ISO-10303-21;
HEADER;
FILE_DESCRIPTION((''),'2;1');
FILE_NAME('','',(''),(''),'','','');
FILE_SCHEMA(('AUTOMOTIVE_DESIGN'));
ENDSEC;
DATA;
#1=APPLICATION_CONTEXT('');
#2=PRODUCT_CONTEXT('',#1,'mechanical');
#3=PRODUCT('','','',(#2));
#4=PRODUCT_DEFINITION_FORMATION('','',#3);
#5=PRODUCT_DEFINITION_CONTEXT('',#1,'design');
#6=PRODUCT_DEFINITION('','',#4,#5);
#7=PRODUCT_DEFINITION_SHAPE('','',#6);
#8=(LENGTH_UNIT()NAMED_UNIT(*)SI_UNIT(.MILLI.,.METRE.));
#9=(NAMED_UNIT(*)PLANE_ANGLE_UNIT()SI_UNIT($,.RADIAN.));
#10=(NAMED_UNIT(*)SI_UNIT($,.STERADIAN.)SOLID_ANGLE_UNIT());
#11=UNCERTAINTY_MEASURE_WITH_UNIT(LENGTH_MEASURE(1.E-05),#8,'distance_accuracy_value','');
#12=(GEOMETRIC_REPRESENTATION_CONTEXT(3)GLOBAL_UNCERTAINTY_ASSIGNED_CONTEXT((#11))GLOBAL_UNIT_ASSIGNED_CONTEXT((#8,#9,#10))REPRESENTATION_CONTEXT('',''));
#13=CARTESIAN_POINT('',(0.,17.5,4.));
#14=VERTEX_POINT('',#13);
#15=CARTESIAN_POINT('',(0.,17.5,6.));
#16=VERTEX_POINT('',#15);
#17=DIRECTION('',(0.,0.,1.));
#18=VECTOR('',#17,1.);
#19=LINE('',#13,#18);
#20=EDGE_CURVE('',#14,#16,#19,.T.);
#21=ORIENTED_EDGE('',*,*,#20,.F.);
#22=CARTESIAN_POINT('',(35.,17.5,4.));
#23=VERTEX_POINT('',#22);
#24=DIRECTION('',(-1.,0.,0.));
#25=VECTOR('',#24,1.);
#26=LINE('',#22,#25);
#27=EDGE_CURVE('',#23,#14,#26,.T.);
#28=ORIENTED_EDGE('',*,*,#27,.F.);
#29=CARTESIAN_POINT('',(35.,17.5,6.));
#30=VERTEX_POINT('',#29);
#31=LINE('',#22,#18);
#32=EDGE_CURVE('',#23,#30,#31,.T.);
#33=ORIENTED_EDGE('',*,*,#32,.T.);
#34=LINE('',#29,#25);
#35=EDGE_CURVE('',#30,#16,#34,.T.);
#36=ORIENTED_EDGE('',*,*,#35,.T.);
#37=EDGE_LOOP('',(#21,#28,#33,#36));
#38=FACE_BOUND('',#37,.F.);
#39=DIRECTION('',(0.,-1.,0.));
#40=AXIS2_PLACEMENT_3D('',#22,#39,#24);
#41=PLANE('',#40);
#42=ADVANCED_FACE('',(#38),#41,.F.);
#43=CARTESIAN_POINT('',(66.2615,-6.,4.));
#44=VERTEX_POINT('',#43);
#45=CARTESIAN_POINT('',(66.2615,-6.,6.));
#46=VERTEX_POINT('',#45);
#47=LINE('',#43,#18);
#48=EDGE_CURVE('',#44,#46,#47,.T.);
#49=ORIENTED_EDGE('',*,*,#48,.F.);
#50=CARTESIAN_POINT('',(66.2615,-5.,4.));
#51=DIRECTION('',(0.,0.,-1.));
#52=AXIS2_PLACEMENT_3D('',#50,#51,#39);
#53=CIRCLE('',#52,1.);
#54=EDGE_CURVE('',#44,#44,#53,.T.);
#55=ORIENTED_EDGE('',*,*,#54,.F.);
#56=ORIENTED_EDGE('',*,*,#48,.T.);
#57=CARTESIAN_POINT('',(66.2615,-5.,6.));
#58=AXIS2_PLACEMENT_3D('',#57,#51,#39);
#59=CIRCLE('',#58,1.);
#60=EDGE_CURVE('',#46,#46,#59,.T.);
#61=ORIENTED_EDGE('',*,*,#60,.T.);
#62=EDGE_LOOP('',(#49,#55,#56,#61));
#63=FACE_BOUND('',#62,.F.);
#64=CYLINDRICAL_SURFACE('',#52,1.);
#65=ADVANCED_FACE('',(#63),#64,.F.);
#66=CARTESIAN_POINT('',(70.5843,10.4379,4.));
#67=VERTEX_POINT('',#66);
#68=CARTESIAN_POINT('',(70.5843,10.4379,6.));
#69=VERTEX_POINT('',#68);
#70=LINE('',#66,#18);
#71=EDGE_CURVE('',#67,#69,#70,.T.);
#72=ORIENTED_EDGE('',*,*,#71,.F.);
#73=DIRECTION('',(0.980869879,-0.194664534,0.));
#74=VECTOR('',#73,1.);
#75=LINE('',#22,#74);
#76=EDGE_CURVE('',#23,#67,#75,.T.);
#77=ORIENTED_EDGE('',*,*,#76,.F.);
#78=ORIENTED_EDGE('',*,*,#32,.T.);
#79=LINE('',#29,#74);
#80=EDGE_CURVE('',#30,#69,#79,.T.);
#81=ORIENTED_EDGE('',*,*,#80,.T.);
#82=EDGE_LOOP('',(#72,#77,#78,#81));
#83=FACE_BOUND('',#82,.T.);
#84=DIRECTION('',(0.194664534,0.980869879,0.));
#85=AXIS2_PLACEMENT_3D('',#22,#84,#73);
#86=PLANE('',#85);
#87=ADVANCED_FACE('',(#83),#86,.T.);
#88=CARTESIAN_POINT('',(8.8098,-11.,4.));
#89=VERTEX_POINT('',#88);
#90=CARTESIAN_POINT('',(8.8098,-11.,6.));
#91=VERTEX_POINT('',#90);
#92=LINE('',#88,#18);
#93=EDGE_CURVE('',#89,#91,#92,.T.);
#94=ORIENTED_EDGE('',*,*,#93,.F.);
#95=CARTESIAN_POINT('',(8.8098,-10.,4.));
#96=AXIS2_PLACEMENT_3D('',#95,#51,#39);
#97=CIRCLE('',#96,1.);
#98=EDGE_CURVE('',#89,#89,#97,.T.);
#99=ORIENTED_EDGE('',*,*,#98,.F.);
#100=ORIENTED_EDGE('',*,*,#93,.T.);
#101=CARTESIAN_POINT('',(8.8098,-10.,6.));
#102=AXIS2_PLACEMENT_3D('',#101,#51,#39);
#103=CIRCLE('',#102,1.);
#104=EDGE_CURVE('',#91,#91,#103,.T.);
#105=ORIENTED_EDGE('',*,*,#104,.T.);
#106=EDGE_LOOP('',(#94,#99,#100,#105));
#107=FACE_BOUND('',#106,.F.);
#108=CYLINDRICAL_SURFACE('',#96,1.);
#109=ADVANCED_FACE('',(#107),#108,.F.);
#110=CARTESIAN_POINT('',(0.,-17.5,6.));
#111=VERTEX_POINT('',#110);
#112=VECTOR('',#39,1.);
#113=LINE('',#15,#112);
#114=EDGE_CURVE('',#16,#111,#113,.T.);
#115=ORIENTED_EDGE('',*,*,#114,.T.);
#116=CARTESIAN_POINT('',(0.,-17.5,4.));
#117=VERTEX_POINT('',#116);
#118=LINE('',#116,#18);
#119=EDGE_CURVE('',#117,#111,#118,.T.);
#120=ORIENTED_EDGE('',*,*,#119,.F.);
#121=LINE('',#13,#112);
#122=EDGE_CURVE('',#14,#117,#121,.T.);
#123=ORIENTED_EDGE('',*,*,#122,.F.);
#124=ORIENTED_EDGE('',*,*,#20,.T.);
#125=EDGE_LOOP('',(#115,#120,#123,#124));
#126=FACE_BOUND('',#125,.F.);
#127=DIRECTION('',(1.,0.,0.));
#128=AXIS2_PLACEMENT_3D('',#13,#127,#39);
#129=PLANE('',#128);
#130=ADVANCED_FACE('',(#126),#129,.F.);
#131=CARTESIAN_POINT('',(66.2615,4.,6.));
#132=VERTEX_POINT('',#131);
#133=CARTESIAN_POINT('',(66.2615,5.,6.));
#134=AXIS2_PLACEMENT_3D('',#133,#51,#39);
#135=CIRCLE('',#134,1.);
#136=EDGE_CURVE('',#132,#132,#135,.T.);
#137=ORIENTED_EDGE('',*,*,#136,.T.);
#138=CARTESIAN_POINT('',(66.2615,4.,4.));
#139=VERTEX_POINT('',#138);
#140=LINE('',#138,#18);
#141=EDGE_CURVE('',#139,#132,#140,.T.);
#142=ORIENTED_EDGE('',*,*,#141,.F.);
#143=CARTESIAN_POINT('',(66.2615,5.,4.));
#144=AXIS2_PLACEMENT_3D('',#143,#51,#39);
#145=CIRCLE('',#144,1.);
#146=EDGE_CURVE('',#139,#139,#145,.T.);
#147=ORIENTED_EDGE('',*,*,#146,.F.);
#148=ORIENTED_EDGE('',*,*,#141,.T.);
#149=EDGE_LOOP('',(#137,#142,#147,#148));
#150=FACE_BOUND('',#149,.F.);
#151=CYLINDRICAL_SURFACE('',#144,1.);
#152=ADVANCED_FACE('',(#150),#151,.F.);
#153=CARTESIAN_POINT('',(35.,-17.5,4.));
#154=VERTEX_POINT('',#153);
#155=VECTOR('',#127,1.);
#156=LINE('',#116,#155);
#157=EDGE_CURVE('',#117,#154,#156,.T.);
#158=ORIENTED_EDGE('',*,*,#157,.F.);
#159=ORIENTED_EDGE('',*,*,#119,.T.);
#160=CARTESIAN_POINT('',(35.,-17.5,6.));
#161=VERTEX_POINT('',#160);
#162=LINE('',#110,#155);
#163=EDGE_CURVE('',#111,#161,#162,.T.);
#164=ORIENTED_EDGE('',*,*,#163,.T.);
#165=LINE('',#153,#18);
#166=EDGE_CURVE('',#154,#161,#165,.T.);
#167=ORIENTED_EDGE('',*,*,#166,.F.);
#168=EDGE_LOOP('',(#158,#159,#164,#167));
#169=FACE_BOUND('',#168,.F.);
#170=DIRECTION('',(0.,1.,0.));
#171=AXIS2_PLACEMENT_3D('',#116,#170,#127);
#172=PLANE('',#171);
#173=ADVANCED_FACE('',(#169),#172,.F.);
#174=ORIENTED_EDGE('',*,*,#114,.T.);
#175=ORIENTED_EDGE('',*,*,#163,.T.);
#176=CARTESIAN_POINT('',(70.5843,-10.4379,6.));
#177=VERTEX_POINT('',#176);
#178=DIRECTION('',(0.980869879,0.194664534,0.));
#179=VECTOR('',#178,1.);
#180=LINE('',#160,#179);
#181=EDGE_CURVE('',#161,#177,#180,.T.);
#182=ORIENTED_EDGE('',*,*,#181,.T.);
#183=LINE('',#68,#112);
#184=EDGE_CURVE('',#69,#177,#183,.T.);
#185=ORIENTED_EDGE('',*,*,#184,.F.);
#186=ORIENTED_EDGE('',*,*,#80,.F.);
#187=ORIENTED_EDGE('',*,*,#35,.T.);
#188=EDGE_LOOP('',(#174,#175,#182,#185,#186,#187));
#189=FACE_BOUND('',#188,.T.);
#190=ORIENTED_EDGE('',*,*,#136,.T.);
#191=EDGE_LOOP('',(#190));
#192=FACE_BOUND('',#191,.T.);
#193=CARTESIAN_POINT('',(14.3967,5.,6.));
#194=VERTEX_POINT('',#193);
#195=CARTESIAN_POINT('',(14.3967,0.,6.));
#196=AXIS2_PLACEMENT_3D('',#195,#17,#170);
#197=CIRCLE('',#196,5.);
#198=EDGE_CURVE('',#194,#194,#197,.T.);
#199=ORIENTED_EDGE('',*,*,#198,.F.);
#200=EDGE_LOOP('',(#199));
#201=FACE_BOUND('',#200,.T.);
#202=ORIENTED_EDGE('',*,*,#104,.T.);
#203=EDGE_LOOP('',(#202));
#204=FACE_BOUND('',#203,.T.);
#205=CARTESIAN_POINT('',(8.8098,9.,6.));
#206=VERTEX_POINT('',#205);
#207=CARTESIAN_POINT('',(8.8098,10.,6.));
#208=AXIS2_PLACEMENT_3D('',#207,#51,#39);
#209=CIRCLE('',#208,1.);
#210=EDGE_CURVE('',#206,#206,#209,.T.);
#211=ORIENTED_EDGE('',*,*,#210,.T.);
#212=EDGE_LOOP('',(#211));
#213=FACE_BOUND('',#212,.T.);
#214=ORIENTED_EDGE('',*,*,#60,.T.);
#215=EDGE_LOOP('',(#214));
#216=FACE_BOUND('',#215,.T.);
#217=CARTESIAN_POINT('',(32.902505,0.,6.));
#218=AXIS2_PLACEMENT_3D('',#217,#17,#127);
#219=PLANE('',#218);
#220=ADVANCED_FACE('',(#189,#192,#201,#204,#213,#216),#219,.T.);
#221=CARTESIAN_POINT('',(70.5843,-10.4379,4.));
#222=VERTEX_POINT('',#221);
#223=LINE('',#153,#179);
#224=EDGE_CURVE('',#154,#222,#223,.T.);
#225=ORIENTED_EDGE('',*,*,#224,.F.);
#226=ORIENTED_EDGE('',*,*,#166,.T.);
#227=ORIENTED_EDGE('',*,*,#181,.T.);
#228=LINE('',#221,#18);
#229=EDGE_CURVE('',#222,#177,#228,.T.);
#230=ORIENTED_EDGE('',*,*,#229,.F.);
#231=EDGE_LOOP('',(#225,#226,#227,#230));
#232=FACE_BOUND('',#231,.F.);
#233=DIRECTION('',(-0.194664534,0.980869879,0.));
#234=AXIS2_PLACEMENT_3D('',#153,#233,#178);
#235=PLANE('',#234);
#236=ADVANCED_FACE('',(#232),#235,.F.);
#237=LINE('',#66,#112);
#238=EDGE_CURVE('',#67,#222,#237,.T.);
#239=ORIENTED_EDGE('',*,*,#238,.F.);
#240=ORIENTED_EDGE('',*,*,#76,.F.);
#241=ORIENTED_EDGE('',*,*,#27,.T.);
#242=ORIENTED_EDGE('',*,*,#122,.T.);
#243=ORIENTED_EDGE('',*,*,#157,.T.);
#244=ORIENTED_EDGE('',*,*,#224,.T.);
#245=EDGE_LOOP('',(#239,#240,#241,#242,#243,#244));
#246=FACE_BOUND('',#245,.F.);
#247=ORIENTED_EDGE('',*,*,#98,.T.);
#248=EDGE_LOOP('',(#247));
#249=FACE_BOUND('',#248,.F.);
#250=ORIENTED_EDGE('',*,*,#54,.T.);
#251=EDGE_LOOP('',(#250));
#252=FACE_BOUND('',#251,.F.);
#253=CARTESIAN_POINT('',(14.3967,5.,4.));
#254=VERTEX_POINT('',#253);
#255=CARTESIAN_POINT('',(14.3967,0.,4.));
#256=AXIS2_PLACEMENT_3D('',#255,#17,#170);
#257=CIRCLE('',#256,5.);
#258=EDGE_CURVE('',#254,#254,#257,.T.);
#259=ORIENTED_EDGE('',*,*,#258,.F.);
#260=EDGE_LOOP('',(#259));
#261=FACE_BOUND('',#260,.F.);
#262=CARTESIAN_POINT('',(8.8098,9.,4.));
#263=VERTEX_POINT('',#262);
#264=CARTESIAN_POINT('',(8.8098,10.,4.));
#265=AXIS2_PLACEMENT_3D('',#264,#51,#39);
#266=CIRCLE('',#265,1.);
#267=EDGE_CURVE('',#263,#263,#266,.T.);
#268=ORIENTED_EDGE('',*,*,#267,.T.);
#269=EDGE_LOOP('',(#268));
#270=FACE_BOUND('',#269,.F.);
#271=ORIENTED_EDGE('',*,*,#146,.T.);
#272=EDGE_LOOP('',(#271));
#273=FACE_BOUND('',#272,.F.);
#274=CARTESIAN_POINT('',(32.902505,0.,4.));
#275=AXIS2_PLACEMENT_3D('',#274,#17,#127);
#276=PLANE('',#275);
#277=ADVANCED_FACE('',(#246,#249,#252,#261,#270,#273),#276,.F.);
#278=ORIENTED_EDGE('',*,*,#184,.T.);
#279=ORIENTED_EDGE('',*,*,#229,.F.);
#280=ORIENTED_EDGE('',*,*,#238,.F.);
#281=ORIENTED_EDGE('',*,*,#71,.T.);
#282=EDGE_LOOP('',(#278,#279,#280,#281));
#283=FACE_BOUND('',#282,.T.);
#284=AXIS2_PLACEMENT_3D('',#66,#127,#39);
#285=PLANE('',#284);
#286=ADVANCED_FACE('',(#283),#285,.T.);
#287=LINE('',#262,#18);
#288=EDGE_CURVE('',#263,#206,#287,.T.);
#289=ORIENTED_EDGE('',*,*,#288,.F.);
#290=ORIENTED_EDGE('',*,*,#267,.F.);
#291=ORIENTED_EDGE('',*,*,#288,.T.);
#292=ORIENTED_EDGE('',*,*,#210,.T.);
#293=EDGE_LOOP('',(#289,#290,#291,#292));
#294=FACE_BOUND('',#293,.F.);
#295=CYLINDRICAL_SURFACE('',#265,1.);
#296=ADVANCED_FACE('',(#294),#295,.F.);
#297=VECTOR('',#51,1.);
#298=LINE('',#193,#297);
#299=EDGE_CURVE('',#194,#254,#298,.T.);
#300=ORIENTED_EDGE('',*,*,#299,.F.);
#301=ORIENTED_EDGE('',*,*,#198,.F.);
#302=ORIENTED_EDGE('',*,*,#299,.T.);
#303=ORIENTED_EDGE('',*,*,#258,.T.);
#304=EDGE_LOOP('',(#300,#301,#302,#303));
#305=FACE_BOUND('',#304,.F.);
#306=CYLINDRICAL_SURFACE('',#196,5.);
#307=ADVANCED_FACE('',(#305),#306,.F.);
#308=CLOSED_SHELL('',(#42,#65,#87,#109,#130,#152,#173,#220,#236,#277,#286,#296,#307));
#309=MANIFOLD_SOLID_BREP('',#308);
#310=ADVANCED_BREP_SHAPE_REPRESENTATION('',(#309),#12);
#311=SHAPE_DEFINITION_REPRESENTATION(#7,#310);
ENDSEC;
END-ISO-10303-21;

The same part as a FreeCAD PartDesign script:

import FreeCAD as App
import Part
import Sketcher
from FreeCAD import Vector
Q = App.Units.Quantity


def add_polygon(sketch, points):
    """Adds a closed chain of lines whose ends are joined by coincident constraints."""
    first, n = sketch.GeometryCount, len(points)
    for a, b in zip(points, points[1:] + points[:1]):
        sketch.addGeometry(Part.LineSegment(App.Vector(*a, 0), App.Vector(*b, 0)), False)
    for i in range(n):
        sketch.addConstraint(Sketcher.Constraint("Coincident", first + i, 2, first + (i + 1) % n, 1))

doc = App.newDocument("Part")
params = doc.addObject("Spreadsheet::Sheet", "Params")
for row, (alias, value) in enumerate([
    ("sketch1_width", "35 mm"),
    ("pad1_length", "2 mm"),
    ("sketch2_diameter", "10 mm"),
    ("sketch3_diameter", "2 mm"),
], start=1):
    params.set(f"A{row}", alias)
    params.set(f"B{row}", "=" + value)
    params.setAlias(f"B{row}", alias)

body = doc.addObject("PartDesign::Body", "Body")

sketch1 = body.newObject("Sketcher::SketchObject", "Sketch")
sketch1.AttachmentSupport = (doc.getObject("XY_Plane"), [""])
sketch1.MapMode = "FlatFace"
sketch1.AttachmentOffset = App.Placement(Vector(0, 0, 4), App.Rotation())
add_polygon(sketch1, [(35, 18), (0, 18), (0, -18), (35, -18), (71, -10), (71, 10)])
sketch1.addConstraint(Sketcher.Constraint("Horizontal", 0))
sketch1.addConstraint(Sketcher.Constraint("Vertical", 1))
sketch1.addConstraint(Sketcher.Constraint("Horizontal", 2))
sketch1.addConstraint(Sketcher.Constraint("Vertical", 4))
sketch1.addConstraint(Sketcher.Constraint("Symmetric", 0, 2, 1, 2, -1, 1))
sketch1.addConstraint(Sketcher.Constraint("Vertical", 2, 2, 5, 2))
sketch1.addConstraint(Sketcher.Constraint("Equal", 2, 1))
sketch1.addConstraint(Sketcher.Constraint("Equal", 3, 5))
sketch1.addConstraint(Sketcher.Constraint("DistanceX", 0, 2, 0, 1, Q("35 mm")))
sketch1.addConstraint(Sketcher.Constraint("DistanceY", 4, 1, 4, 2, Q("20.8758 mm")))
sketch1.addConstraint(Sketcher.Constraint("Distance", 3, Q("36.2783 mm")))
sketch1.setExpression("Constraints[14]", "Params.sketch1_width")
pad1 = body.newObject("PartDesign::Pad", "Pad")
pad1.Profile = sketch1
pad1.setExpression("Length", "Params.pad1_length")

sketch2 = body.newObject("Sketcher::SketchObject", "Sketch001")
sketch2.AttachmentSupport = (doc.getObject("XY_Plane"), [""])
sketch2.MapMode = "FlatFace"
sketch2.AttachmentOffset = App.Placement(Vector(0, 0, 6), App.Rotation())
sketch2.addGeometry(Part.Circle(Vector(14, 0, 0), Vector(0, 0, 1), 5), False)
sketch2.addConstraint(Sketcher.Constraint("PointOnObject", 0, 3, -1))
sketch2.addConstraint(Sketcher.Constraint("Diameter", 0, Q("10 mm")))
sketch2.addConstraint(Sketcher.Constraint("DistanceX", -1, 1, 0, 3, Q("14.3967 mm")))
sketch2.setExpression("Constraints[1]", "Params.sketch2_diameter")
pocket1 = body.newObject("PartDesign::Pocket", "Pocket")
pocket1.Profile = sketch2
pocket1.Type = "ThroughAll"

sketch3 = body.newObject("Sketcher::SketchObject", "Sketch002")
sketch3.AttachmentSupport = (doc.getObject("XY_Plane"), [""])
sketch3.MapMode = "FlatFace"
sketch3.AttachmentOffset = App.Placement(Vector(0, 0, 4), App.Rotation())
sketch3.addGeometry(Part.Circle(Vector(8.8, -10, 0), Vector(0, 0, 1), 1), False)
sketch3.addGeometry(Part.Circle(Vector(66.3, 5, 0), Vector(0, 0, 1), 1), False)
sketch3.addGeometry(Part.Circle(Vector(66.3, -5, 0), Vector(0, 0, 1), 1), False)
sketch3.addGeometry(Part.Circle(Vector(8.8, 10, 0), Vector(0, 0, 1), 1), False)
sketch3.addConstraint(Sketcher.Constraint("Equal", 0, 1))
sketch3.addConstraint(Sketcher.Constraint("Equal", 1, 2))
sketch3.addConstraint(Sketcher.Constraint("Equal", 2, 3))
sketch3.addConstraint(Sketcher.Constraint("Symmetric", 1, 3, 2, 3, -1))
sketch3.addConstraint(Sketcher.Constraint("Symmetric", 0, 3, 3, 3, -1))
sketch3.addConstraint(Sketcher.Constraint("Diameter", 0, Q("2 mm")))
sketch3.addConstraint(Sketcher.Constraint("DistanceY", -1, 1, 1, 3, Q("5 mm")))
sketch3.addConstraint(Sketcher.Constraint("DistanceY", 0, 3, 2, 3, Q("5 mm")))
sketch3.addConstraint(Sketcher.Constraint("DistanceX", -1, 1, 0, 3, Q("8.8098 mm")))
sketch3.addConstraint(Sketcher.Constraint("DistanceX", -1, 1, 1, 3, Q("66.2615 mm")))
sketch3.setExpression("Constraints[5]", "Params.sketch3_diameter")
pocket2 = body.newObject("PartDesign::Pocket", "Pocket001")
pocket2.Profile = sketch3
pocket2.Type = "ThroughAll"
pocket2.Reversed = True

doc.recompute()
